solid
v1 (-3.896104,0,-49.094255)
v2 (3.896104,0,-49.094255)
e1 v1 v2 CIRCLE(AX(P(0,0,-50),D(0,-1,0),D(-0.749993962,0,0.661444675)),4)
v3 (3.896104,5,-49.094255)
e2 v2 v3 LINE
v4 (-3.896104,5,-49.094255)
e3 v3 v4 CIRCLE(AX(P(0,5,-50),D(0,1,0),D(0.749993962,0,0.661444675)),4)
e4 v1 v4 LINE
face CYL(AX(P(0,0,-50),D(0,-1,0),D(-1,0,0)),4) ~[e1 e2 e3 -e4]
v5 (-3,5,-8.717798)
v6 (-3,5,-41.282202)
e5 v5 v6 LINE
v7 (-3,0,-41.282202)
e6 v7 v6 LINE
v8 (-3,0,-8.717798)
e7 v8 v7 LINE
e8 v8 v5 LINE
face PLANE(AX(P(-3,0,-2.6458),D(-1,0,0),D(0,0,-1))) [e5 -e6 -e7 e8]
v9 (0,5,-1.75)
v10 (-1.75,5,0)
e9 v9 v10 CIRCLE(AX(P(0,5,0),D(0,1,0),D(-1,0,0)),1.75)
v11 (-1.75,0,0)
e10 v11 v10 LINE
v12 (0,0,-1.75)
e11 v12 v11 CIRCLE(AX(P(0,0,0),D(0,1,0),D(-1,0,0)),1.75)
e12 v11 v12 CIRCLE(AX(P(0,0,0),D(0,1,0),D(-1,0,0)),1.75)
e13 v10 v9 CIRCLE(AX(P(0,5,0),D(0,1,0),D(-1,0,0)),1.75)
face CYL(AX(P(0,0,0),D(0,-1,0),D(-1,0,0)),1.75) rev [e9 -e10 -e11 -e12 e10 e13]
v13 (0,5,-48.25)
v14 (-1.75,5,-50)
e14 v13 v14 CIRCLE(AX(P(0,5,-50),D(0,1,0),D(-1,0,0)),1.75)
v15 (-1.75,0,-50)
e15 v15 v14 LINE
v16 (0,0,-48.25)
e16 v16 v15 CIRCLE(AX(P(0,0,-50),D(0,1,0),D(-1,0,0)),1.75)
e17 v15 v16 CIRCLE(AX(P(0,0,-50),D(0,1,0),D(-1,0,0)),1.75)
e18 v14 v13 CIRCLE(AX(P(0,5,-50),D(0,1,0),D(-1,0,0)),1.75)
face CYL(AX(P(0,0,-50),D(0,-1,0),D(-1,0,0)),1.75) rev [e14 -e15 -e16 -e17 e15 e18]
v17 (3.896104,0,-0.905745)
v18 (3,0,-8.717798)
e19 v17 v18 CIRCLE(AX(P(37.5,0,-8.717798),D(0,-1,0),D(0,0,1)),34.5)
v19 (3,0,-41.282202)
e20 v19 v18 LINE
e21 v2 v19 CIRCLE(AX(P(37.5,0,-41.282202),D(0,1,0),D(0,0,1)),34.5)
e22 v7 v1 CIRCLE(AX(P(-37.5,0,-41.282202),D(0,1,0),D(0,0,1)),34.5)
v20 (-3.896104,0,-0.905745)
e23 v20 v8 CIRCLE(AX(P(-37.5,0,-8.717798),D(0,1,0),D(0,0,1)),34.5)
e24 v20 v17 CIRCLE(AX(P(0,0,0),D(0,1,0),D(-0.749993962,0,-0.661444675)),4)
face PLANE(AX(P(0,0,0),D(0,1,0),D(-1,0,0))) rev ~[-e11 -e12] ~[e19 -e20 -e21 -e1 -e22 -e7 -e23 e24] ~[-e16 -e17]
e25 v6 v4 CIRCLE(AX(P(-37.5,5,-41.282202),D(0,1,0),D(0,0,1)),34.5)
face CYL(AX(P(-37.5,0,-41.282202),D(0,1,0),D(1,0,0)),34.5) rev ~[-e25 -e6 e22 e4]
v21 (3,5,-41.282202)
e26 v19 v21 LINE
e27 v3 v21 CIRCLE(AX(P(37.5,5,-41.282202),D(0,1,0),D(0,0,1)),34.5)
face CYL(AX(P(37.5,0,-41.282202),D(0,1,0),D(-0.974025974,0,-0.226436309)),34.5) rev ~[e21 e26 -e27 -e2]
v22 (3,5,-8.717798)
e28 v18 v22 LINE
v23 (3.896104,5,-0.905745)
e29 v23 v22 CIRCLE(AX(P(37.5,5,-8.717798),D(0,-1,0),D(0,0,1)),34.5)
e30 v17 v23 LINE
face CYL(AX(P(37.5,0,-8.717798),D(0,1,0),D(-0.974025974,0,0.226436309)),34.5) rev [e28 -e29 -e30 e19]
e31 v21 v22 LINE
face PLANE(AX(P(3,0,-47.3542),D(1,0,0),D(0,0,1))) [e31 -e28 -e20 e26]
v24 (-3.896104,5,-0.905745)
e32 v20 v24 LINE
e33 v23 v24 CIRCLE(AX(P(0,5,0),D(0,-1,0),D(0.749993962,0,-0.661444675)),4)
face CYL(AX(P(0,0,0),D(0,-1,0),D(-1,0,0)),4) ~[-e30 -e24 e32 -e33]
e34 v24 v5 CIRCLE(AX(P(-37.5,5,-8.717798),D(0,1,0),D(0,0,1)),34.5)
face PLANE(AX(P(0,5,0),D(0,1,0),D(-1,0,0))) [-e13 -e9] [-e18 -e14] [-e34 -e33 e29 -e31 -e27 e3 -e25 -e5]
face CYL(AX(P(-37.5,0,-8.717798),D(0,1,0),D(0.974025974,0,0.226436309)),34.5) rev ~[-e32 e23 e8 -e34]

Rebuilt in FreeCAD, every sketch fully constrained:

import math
import FreeCAD as App
import Part
import Sketcher
from FreeCAD import Vector


def edges_at(feature, points):
    """Names of the edges that pass closest to the given points."""
    edges = feature.Shape.Edges
    near = lambda p: min(range(len(edges)), key=lambda i: edges[i].distToShape(Part.Vertex(*p))[0])
    return sorted({f"Edge{near(p) + 1}" for p in points})

doc = App.newDocument("Part")
body = doc.addObject("PartDesign::Body", "Body")

sketch1 = doc.addObject("Sketcher::SketchObject", "Sketch")
body.addObject(sketch1)
sketch1.AttachmentSupport = (doc.XZ_Plane, [""])
sketch1.MapMode = "FlatFace"
sketch1.addGeometry(Part.ArcOfCircle(Part.Circle(Vector(0, 0, 0), Vector(0, 0, 1), 4), math.radians(-41), math.radians(221)), False)
sketch1.addGeometry(Part.LineSegment(Vector(3, -2.6, 0), Vector(3, -47.4, 0)), False)
sketch1.addGeometry(Part.ArcOfCircle(Part.Circle(Vector(0, -50, 0), Vector(0, 0, 1), 4), math.radians(139), math.radians(401)), False)
sketch1.addGeometry(Part.LineSegment(Vector(-3, -47.4, 0), Vector(-3, -2.6, 0)), False)
sketch1.addGeometry(Part.Circle(Vector(0, 0, 0), Vector(0, 0, 1), 1.8), False)
sketch1.addGeometry(Part.Circle(Vector(0, -50, 0), Vector(0, 0, 1), 1.8), False)
sketch1.addConstraint(Sketcher.Constraint("Coincident", 0, 1, 1, 1))
sketch1.addConstraint(Sketcher.Constraint("Coincident", 1, 2, 2, 2))
sketch1.addConstraint(Sketcher.Constraint("Coincident", 2, 1, 3, 1))
sketch1.addConstraint(Sketcher.Constraint("Coincident", 3, 2, 0, 2))
sketch1.addConstraint(Sketcher.Constraint("Vertical", 1))
sketch1.addConstraint(Sketcher.Constraint("Vertical", 3))
sketch1.addConstraint(Sketcher.Constraint("Coincident", 0, 3, -1, 1))
sketch1.addConstraint(Sketcher.Constraint("Coincident", 4, 3, -1, 1))
sketch1.addConstraint(Sketcher.Constraint("Coincident", 5, 3, 2, 3))
sketch1.addConstraint(Sketcher.Constraint("Equal", 0, 2))
sketch1.addConstraint(Sketcher.Constraint("Equal", 4, 5))
sketch1.addConstraint(Sketcher.Constraint("Symmetric", 1, 2, 2, 1, -2))
sketch1.addConstraint(Sketcher.Constraint("Radius", 0, 4.0))
sketch1.addConstraint(Sketcher.Constraint("Diameter", 4, 3.5))
sketch1.addConstraint(Sketcher.Constraint("DistanceY", 2, 3, -1, 1, 50.0))
sketch1.addConstraint(Sketcher.Constraint("DistanceX", 2, 1, 1, 2, 6.0))
pad1 = doc.addObject("PartDesign::Pad", "Pad")
body.addObject(pad1)
pad1.Profile = sketch1
pad1.Length = 5
pad1.Reversed = True
doc.recompute()

fillet = doc.addObject("PartDesign::Fillet", "Fillet")
body.addObject(fillet)
fillet.Base = (pad1, edges_at(pad1, [
    (3, 2.5, -2.646),
    (3, 2.5, -47.354),
    (-3, 2.5, -2.646),
    (-3, 2.5, -47.354),
]))
fillet.Radius = 34.5

doc.recompute()
